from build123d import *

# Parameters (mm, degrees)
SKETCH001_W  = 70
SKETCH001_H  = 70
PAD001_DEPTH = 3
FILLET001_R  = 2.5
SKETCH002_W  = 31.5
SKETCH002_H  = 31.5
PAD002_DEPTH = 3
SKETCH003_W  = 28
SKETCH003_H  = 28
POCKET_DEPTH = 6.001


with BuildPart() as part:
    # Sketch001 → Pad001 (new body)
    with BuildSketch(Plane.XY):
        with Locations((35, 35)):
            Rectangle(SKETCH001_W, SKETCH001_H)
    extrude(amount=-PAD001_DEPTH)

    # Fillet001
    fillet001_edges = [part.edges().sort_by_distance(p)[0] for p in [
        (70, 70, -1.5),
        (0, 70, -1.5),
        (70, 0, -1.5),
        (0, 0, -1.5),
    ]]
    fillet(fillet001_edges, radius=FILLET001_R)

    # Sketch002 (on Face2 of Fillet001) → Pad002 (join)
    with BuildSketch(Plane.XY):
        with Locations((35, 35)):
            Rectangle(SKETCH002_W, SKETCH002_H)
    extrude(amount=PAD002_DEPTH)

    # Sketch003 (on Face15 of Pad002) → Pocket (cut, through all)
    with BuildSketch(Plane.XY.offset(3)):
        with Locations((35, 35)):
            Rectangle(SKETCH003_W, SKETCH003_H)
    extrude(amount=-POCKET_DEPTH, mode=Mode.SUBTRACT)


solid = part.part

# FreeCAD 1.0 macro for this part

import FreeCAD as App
import Part
import Sketcher

V = App.Vector
Q = App.Units.Quantity


def edges_at(feature, points):
    """Names of the edges that pass closest to the given points."""
    edges = feature.Shape.Edges
    near = lambda p: min(range(len(edges)), key=lambda i: edges[i].distToShape(Part.Vertex(*p))[0])
    return sorted({f"Edge{near(p) + 1}" for p in points})


def add_polygon(sketch, points):
    """Adds a closed chain of lines whose ends are joined by coincident constraints."""
    first, n = sketch.GeometryCount, len(points)
    for a, b in zip(points, points[1:] + points[:1]):
        sketch.addGeometry(Part.LineSegment(App.Vector(*a, 0), App.Vector(*b, 0)), False)
    for i in range(n):
        sketch.addConstraint(Sketcher.Constraint("Coincident", first + i, 2, first + (i + 1) % n, 1))

doc = App.newDocument("Part")
params = doc.addObject("Spreadsheet::Sheet", "Params")
for row, (alias, value) in enumerate([
    ("sketch1_width", "70 mm"),
    ("pad1_length", "3 mm"),
    ("fillet_radius", "2.5 mm"),
    ("sketch2_width", "31.5 mm"),
    ("pad2_length", "3 mm"),
    ("sketch3_width", "28 mm"),
], start=1):
    params.set(f"A{row}", alias)
    params.set(f"B{row}", "=" + value)
    params.setAlias(f"B{row}", alias)

body = doc.addObject("PartDesign::Body", "Body")

sketch1 = body.newObject("Sketcher::SketchObject", "Sketch")
sketch1.AttachmentSupport = (doc.getObject("XY_Plane"), [""])
sketch1.MapMode = "FlatFace"
add_polygon(sketch1, [(0, 70), (0, 0), (70, 0), (70, 70)])
sketch1.addConstraint([
    Sketcher.Constraint("Vertical", 0),
    Sketcher.Constraint("Horizontal", 1),
    Sketcher.Constraint("Vertical", 2),
    Sketcher.Constraint("Horizontal", 3),
    Sketcher.Constraint("Coincident", 0, 2, -1, 1),
    Sketcher.Constraint("Equal", 3, 0),
    Sketcher.Constraint("DistanceX", 1, 1, 1, 2, Q("70 mm")),
])
sketch1.setExpression("Constraints[10]", "Params.sketch1_width")
pad1 = body.newObject("PartDesign::Pad", "Pad")
pad1.Profile = sketch1
pad1.setExpression("Length", "Params.pad1_length")
pad1.Reversed = True
doc.recompute()

fillet = body.newObject("PartDesign::Fillet", "Fillet")
fillet.Base = (pad1, edges_at(pad1, [
    (70, 70, -1.5),
    (0, 70, -1.5),
    (70, 0, -1.5),
    (0, 0, -1.5),
]))
fillet.setExpression("Radius", "Params.fillet_radius")

sketch2 = body.newObject("Sketcher::SketchObject", "Sketch001")
sketch2.AttachmentSupport = (doc.getObject("XY_Plane"), [""])
sketch2.MapMode = "FlatFace"
add_polygon(sketch2, [(19, 51), (19, 19), (51, 19), (51, 51)])
sketch2.addConstraint([
    Sketcher.Constraint("Vertical", 0),
    Sketcher.Constraint("Horizontal", 1),
    Sketcher.Constraint("Vertical", 2),
    Sketcher.Constraint("Horizontal", 3),
    Sketcher.Constraint("Equal", 3, 0),
    Sketcher.Constraint("DistanceX", 1, 1, 1, 2, Q("31.5 mm")),
    Sketcher.Constraint("DistanceX", -1, 1, 0, 2, Q("19.25 mm")),
    Sketcher.Constraint("DistanceY", -1, 1, 0, 2, Q("19.25 mm")),
])
sketch2.setExpression("Constraints[9]", "Params.sketch2_width")
pad2 = body.newObject("PartDesign::Pad", "Pad001")
pad2.Profile = sketch2
pad2.setExpression("Length", "Params.pad2_length")

sketch3 = body.newObject("Sketcher::SketchObject", "Sketch002")
sketch3.AttachmentSupport = (doc.getObject("XY_Plane"), [""])
sketch3.MapMode = "FlatFace"
sketch3.AttachmentOffset = App.Placement(V(0, 0, 3), App.Rotation())
add_polygon(sketch3, [(21, 49), (21, 21), (49, 21), (49, 49)])
sketch3.addConstraint([
    Sketcher.Constraint("Vertical", 0),
    Sketcher.Constraint("Horizontal", 1),
    Sketcher.Constraint("Vertical", 2),
    Sketcher.Constraint("Horizontal", 3),
    Sketcher.Constraint("Equal", 3, 0),
    Sketcher.Constraint("DistanceX", 1, 1, 1, 2, Q("28 mm")),
    Sketcher.Constraint("DistanceX", -1, 1, 0, 2, Q("21 mm")),
    Sketcher.Constraint("DistanceY", -1, 1, 0, 2, Q("21 mm")),
])
sketch3.setExpression("Constraints[9]", "Params.sketch3_width")
pocket1 = body.newObject("PartDesign::Pocket", "Pocket")
pocket1.Profile = sketch3
pocket1.Type = "ThroughAll"

doc.recompute()
